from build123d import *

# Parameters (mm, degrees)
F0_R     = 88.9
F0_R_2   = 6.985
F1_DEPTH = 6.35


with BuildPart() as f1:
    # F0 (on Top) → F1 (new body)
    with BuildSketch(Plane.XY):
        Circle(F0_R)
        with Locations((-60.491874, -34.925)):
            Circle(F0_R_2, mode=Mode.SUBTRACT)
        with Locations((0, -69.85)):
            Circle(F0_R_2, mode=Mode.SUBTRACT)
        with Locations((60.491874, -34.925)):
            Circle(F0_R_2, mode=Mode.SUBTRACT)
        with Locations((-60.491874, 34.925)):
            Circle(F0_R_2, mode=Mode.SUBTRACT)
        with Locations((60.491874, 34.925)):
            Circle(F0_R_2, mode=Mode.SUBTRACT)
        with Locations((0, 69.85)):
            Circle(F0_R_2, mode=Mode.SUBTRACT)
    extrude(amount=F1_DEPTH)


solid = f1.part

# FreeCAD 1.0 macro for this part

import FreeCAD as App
import Part
import Sketcher
from FreeCAD import Vector
Q = App.Units.Quantity

doc = App.newDocument("Part")
body = doc.addObject("PartDesign::Body", "Body")

# Sketch on XY plane
sketch1 = body.newObject("Sketcher::SketchObject", "Sketch")
sketch1.AttachmentSupport = (doc.getObject("XY_Plane"), [""])
sketch1.MapMode = "FlatFace"
sketch1.addGeometry([
    Part.Circle(Vector(0, 0, 0), Vector(0, 0, 1), 89),  # 0
    Part.Circle(Vector(0, -70, 0), Vector(0, 0, 1), 7),  # 1
    Part.Circle(Vector(-60, -35, 0), Vector(0, 0, 1), 7),  # 2
    Part.Circle(Vector(60, -35, 0), Vector(0, 0, 1), 7),  # 3
    Part.Circle(Vector(-60, 35, 0), Vector(0, 0, 1), 7),  # 4
    Part.Circle(Vector(0, 70, 0), Vector(0, 0, 1), 7),  # 5
    Part.Circle(Vector(60, 35, 0), Vector(0, 0, 1), 7),  # 6
], False)
sketch1.addConstraint([
    Sketcher.Constraint("Coincident", 0, 3, -1, 1),
    Sketcher.Constraint("Equal", 1, 2),
    Sketcher.Constraint("Equal", 2, 3),
    Sketcher.Constraint("Equal", 3, 4),
    Sketcher.Constraint("Equal", 4, 5),
    Sketcher.Constraint("Equal", 5, 6),
    Sketcher.Constraint("Symmetric", 3, 3, 4, 3, -1, 1),
    Sketcher.Constraint("Symmetric", 1, 3, 5, 3, -1, 1),
    Sketcher.Constraint("Symmetric", 2, 3, 6, 3, -1, 1),
    Sketcher.Constraint("Symmetric", 2, 3, 3, 3, -2),
    Sketcher.Constraint("PointOnObject", 1, 3, -2),
    Sketcher.Constraint("Diameter", 0, Q("7 in")),
    Sketcher.Constraint("Diameter", 1, Q("0.55 in")),
    Sketcher.Constraint("DistanceY", 1, 3, 5, 3, Q("5.5 in")),
    Sketcher.Constraint("DistanceY", 2, 3, 4, 3, Q("2.75 in")),
    Sketcher.Constraint("DistanceX", 2, 3, 3, 3, 120.983748),
])
pad1 = body.newObject("PartDesign::Pad", "Pad")
pad1.Profile = sketch1
pad1.Length = Q("0.25 in")

doc.recompute()
